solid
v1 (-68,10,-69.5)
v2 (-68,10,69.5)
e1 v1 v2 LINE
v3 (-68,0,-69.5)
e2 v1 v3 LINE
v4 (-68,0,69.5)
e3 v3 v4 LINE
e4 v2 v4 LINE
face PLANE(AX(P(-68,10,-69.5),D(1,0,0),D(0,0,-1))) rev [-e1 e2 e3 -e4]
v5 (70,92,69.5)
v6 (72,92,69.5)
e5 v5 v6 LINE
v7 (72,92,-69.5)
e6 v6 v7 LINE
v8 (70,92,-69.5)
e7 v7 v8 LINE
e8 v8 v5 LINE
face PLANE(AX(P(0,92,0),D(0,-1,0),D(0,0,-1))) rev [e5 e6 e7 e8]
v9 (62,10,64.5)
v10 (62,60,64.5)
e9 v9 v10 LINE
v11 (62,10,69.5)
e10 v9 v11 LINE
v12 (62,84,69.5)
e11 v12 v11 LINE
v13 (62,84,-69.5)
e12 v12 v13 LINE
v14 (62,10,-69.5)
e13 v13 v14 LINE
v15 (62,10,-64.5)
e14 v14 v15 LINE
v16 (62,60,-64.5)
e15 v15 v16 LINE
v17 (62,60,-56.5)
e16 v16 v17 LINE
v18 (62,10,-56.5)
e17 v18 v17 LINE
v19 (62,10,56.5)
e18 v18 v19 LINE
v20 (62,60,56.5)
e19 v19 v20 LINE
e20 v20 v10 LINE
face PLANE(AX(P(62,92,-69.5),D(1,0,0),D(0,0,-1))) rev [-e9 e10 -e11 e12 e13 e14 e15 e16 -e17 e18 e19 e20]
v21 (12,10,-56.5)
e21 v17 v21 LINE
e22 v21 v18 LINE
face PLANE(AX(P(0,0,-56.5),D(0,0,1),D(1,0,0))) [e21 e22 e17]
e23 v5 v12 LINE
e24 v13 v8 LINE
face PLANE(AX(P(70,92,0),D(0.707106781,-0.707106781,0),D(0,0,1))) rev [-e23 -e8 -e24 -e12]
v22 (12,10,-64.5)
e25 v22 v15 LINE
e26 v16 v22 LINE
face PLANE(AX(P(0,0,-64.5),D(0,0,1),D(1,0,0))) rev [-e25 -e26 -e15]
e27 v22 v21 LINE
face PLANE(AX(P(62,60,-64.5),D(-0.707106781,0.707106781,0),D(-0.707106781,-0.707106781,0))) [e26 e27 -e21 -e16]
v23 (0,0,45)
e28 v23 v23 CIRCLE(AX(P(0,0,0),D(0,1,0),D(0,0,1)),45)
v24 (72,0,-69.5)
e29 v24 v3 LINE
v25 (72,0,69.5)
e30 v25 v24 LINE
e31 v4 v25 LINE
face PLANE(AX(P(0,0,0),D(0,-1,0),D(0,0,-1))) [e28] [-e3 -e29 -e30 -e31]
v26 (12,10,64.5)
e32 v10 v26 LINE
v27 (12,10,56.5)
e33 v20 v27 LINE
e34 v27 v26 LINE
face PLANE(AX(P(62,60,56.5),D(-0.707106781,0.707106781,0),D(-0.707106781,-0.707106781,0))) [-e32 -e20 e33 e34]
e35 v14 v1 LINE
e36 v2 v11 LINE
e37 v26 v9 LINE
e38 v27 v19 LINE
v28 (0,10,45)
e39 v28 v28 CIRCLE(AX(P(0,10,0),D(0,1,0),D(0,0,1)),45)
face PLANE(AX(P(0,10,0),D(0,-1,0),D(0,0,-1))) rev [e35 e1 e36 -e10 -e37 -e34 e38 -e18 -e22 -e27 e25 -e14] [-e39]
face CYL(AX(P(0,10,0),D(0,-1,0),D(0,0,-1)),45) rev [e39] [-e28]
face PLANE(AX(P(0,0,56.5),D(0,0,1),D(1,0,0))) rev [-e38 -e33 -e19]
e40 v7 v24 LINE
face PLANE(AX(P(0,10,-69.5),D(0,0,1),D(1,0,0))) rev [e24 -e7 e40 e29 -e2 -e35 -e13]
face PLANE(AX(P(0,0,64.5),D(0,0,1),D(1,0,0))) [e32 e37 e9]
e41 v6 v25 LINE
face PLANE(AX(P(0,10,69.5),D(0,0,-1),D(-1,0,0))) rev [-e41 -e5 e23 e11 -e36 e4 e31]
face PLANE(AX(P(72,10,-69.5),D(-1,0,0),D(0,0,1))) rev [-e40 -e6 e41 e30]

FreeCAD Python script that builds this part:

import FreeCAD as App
import Part
import Sketcher


def edges_at(feature, points):
    """Names of the edges that pass closest to the given points."""
    edges = feature.Shape.Edges
    near = lambda p: min(range(len(edges)), key=lambda i: edges[i].distToShape(Part.Vertex(*p))[0])
    return sorted({f"Edge{near(p) + 1}" for p in points})

doc = App.newDocument("Part")
body = doc.addObject("PartDesign::Body", "Body")

sketch1 = doc.addObject("Sketcher::SketchObject", "Sketch")
body.addObject(sketch1)
sketch1.AttachmentSupport = (doc.XZ_Plane, [""])
sketch1.MapMode = "FlatFace"
sketch1.addGeometry(Part.LineSegment(App.Vector(-68, -69.5, 0), App.Vector(-68, 69.5, 0)), False)
sketch1.addGeometry(Part.LineSegment(App.Vector(-68, 69.5, 0), App.Vector(72, 69.5, 0)), False)
sketch1.addGeometry(Part.LineSegment(App.Vector(72, 69.5, 0), App.Vector(72, -69.5, 0)), False)
sketch1.addGeometry(Part.LineSegment(App.Vector(72, -69.5, 0), App.Vector(-68, -69.5, 0)), False)
sketch1.addGeometry(Part.Circle(App.Vector(0, 0, 0), App.Vector(0, 0, 1), 45), False)
sketch1.addConstraint(Sketcher.Constraint("Coincident", 0, 2, 1, 1))
sketch1.addConstraint(Sketcher.Constraint("Coincident", 1, 2, 2, 1))
sketch1.addConstraint(Sketcher.Constraint("Coincident", 2, 2, 3, 1))
sketch1.addConstraint(Sketcher.Constraint("Coincident", 3, 2, 0, 1))
sketch1.addConstraint(Sketcher.Constraint("Vertical", 0))
sketch1.addConstraint(Sketcher.Constraint("Horizontal", 1))
sketch1.addConstraint(Sketcher.Constraint("Vertical", 2))
sketch1.addConstraint(Sketcher.Constraint("Horizontal", 3))
sketch1.addConstraint(Sketcher.Constraint("Coincident", 4, 3, -1, 1))
sketch1.addConstraint(Sketcher.Constraint("Diameter", 4, 90.0))
sketch1.addConstraint(Sketcher.Constraint("DistanceX", 1, 1, 1, 2, 140.0))
sketch1.addConstraint(Sketcher.Constraint("DistanceY", 0, 1, 0, 2, 139.0))
sketch1.addConstraint(Sketcher.Constraint("DistanceX", 0, 2, -1, 1, 68.0))
sketch1.addConstraint(Sketcher.Constraint("DistanceY", -1, 1, 0, 2, 69.5))
pad1 = doc.addObject("PartDesign::Pad", "Pad")
body.addObject(pad1)
pad1.Profile = sketch1
pad1.Length = 10
pad1.Reversed = True

sketch2 = doc.addObject("Sketcher::SketchObject", "Sketch001")
body.addObject(sketch2)
sketch2.AttachmentSupport = (doc.XZ_Plane, [""])
sketch2.MapMode = "FlatFace"
sketch2.AttachmentOffset = App.Placement(App.Vector(0, 0, -10), App.Rotation())
sketch2.addGeometry(Part.LineSegment(App.Vector(62, -69.5, 0), App.Vector(62, 69.5, 0)), False)
sketch2.addGeometry(Part.LineSegment(App.Vector(62, 69.5, 0), App.Vector(72, 69.5, 0)), False)
sketch2.addGeometry(Part.LineSegment(App.Vector(72, 69.5, 0), App.Vector(72, -69.5, 0)), False)
sketch2.addGeometry(Part.LineSegment(App.Vector(72, -69.5, 0), App.Vector(62, -69.5, 0)), False)
sketch2.addConstraint(Sketcher.Constraint("Coincident", 0, 2, 1, 1))
sketch2.addConstraint(Sketcher.Constraint("Coincident", 1, 2, 2, 1))
sketch2.addConstraint(Sketcher.Constraint("Coincident", 2, 2, 3, 1))
sketch2.addConstraint(Sketcher.Constraint("Coincident", 3, 2, 0, 1))
sketch2.addConstraint(Sketcher.Constraint("Vertical", 0))
sketch2.addConstraint(Sketcher.Constraint("Horizontal", 1))
sketch2.addConstraint(Sketcher.Constraint("Vertical", 2))
sketch2.addConstraint(Sketcher.Constraint("Horizontal", 3))
sketch2.addConstraint(Sketcher.Constraint("DistanceX", 1, 1, 1, 2, 10.0))
sketch2.addConstraint(Sketcher.Constraint("DistanceY", 0, 1, 0, 2, 139.0))
sketch2.addConstraint(Sketcher.Constraint("DistanceX", -1, 1, 0, 2, 62.0))
sketch2.addConstraint(Sketcher.Constraint("DistanceY", -1, 1, 0, 2, 69.5))
pad2 = doc.addObject("PartDesign::Pad", "Pad001")
body.addObject(pad2)
pad2.Profile = sketch2
pad2.Length = 82
pad2.Reversed = True
doc.recompute()

chamfer = doc.addObject("PartDesign::Chamfer", "Chamfer")
body.addObject(chamfer)
chamfer.Base = (pad2, edges_at(pad2, [(62, 92, 0)]))
chamfer.Size = 8

sketch3 = doc.addObject("Sketcher::SketchObject", "Sketch002")
body.addObject(sketch3)
sketch3.AttachmentSupport = (doc.XY_Plane, [""])
sketch3.MapMode = "FlatFace"
sketch3.AttachmentOffset = App.Placement(App.Vector(0, 0, 64.5), App.Rotation())
sketch3.addGeometry(Part.LineSegment(App.Vector(12, 10, 0), App.Vector(62, 10, 0)), False)
sketch3.addGeometry(Part.LineSegment(App.Vector(62, 10, 0), App.Vector(62, 60, 0)), False)
sketch3.addGeometry(Part.LineSegment(App.Vector(62, 60, 0), App.Vector(12, 10, 0)), False)
sketch3.addConstraint(Sketcher.Constraint("Coincident", 0, 2, 1, 1))
sketch3.addConstraint(Sketcher.Constraint("Coincident", 1, 2, 2, 1))
sketch3.addConstraint(Sketcher.Constraint("Coincident", 2, 2, 0, 1))
sketch3.addConstraint(Sketcher.Constraint("Horizontal", 0))
sketch3.addConstraint(Sketcher.Constraint("Vertical", 1))
sketch3.addConstraint(Sketcher.Constraint("Equal", 0, 1))
sketch3.addConstraint(Sketcher.Constraint("DistanceX", 0, 1, 0, 2, 50.0))
sketch3.addConstraint(Sketcher.Constraint("DistanceX", -1, 1, 0, 2, 62.0))
sketch3.addConstraint(Sketcher.Constraint("DistanceY", -1, 1, 0, 2, 10.0))
pad3 = doc.addObject("PartDesign::Pad", "Pad002")
body.addObject(pad3)
pad3.Profile = sketch3
pad3.Length = 8
pad3.Reversed = True
doc.recompute()

linearpattern = doc.addObject("PartDesign::LinearPattern", "LinearPattern")
body.addObject(linearpattern)
linearpattern.Originals = [pad3]
linearpattern.Direction = (doc.Z_Axis, [""])
linearpattern.Mode = "offset"
linearpattern.Offset = 121
linearpattern.Occurrences = 2
linearpattern.Reversed = True
body.Tip = linearpattern

doc.recompute()
